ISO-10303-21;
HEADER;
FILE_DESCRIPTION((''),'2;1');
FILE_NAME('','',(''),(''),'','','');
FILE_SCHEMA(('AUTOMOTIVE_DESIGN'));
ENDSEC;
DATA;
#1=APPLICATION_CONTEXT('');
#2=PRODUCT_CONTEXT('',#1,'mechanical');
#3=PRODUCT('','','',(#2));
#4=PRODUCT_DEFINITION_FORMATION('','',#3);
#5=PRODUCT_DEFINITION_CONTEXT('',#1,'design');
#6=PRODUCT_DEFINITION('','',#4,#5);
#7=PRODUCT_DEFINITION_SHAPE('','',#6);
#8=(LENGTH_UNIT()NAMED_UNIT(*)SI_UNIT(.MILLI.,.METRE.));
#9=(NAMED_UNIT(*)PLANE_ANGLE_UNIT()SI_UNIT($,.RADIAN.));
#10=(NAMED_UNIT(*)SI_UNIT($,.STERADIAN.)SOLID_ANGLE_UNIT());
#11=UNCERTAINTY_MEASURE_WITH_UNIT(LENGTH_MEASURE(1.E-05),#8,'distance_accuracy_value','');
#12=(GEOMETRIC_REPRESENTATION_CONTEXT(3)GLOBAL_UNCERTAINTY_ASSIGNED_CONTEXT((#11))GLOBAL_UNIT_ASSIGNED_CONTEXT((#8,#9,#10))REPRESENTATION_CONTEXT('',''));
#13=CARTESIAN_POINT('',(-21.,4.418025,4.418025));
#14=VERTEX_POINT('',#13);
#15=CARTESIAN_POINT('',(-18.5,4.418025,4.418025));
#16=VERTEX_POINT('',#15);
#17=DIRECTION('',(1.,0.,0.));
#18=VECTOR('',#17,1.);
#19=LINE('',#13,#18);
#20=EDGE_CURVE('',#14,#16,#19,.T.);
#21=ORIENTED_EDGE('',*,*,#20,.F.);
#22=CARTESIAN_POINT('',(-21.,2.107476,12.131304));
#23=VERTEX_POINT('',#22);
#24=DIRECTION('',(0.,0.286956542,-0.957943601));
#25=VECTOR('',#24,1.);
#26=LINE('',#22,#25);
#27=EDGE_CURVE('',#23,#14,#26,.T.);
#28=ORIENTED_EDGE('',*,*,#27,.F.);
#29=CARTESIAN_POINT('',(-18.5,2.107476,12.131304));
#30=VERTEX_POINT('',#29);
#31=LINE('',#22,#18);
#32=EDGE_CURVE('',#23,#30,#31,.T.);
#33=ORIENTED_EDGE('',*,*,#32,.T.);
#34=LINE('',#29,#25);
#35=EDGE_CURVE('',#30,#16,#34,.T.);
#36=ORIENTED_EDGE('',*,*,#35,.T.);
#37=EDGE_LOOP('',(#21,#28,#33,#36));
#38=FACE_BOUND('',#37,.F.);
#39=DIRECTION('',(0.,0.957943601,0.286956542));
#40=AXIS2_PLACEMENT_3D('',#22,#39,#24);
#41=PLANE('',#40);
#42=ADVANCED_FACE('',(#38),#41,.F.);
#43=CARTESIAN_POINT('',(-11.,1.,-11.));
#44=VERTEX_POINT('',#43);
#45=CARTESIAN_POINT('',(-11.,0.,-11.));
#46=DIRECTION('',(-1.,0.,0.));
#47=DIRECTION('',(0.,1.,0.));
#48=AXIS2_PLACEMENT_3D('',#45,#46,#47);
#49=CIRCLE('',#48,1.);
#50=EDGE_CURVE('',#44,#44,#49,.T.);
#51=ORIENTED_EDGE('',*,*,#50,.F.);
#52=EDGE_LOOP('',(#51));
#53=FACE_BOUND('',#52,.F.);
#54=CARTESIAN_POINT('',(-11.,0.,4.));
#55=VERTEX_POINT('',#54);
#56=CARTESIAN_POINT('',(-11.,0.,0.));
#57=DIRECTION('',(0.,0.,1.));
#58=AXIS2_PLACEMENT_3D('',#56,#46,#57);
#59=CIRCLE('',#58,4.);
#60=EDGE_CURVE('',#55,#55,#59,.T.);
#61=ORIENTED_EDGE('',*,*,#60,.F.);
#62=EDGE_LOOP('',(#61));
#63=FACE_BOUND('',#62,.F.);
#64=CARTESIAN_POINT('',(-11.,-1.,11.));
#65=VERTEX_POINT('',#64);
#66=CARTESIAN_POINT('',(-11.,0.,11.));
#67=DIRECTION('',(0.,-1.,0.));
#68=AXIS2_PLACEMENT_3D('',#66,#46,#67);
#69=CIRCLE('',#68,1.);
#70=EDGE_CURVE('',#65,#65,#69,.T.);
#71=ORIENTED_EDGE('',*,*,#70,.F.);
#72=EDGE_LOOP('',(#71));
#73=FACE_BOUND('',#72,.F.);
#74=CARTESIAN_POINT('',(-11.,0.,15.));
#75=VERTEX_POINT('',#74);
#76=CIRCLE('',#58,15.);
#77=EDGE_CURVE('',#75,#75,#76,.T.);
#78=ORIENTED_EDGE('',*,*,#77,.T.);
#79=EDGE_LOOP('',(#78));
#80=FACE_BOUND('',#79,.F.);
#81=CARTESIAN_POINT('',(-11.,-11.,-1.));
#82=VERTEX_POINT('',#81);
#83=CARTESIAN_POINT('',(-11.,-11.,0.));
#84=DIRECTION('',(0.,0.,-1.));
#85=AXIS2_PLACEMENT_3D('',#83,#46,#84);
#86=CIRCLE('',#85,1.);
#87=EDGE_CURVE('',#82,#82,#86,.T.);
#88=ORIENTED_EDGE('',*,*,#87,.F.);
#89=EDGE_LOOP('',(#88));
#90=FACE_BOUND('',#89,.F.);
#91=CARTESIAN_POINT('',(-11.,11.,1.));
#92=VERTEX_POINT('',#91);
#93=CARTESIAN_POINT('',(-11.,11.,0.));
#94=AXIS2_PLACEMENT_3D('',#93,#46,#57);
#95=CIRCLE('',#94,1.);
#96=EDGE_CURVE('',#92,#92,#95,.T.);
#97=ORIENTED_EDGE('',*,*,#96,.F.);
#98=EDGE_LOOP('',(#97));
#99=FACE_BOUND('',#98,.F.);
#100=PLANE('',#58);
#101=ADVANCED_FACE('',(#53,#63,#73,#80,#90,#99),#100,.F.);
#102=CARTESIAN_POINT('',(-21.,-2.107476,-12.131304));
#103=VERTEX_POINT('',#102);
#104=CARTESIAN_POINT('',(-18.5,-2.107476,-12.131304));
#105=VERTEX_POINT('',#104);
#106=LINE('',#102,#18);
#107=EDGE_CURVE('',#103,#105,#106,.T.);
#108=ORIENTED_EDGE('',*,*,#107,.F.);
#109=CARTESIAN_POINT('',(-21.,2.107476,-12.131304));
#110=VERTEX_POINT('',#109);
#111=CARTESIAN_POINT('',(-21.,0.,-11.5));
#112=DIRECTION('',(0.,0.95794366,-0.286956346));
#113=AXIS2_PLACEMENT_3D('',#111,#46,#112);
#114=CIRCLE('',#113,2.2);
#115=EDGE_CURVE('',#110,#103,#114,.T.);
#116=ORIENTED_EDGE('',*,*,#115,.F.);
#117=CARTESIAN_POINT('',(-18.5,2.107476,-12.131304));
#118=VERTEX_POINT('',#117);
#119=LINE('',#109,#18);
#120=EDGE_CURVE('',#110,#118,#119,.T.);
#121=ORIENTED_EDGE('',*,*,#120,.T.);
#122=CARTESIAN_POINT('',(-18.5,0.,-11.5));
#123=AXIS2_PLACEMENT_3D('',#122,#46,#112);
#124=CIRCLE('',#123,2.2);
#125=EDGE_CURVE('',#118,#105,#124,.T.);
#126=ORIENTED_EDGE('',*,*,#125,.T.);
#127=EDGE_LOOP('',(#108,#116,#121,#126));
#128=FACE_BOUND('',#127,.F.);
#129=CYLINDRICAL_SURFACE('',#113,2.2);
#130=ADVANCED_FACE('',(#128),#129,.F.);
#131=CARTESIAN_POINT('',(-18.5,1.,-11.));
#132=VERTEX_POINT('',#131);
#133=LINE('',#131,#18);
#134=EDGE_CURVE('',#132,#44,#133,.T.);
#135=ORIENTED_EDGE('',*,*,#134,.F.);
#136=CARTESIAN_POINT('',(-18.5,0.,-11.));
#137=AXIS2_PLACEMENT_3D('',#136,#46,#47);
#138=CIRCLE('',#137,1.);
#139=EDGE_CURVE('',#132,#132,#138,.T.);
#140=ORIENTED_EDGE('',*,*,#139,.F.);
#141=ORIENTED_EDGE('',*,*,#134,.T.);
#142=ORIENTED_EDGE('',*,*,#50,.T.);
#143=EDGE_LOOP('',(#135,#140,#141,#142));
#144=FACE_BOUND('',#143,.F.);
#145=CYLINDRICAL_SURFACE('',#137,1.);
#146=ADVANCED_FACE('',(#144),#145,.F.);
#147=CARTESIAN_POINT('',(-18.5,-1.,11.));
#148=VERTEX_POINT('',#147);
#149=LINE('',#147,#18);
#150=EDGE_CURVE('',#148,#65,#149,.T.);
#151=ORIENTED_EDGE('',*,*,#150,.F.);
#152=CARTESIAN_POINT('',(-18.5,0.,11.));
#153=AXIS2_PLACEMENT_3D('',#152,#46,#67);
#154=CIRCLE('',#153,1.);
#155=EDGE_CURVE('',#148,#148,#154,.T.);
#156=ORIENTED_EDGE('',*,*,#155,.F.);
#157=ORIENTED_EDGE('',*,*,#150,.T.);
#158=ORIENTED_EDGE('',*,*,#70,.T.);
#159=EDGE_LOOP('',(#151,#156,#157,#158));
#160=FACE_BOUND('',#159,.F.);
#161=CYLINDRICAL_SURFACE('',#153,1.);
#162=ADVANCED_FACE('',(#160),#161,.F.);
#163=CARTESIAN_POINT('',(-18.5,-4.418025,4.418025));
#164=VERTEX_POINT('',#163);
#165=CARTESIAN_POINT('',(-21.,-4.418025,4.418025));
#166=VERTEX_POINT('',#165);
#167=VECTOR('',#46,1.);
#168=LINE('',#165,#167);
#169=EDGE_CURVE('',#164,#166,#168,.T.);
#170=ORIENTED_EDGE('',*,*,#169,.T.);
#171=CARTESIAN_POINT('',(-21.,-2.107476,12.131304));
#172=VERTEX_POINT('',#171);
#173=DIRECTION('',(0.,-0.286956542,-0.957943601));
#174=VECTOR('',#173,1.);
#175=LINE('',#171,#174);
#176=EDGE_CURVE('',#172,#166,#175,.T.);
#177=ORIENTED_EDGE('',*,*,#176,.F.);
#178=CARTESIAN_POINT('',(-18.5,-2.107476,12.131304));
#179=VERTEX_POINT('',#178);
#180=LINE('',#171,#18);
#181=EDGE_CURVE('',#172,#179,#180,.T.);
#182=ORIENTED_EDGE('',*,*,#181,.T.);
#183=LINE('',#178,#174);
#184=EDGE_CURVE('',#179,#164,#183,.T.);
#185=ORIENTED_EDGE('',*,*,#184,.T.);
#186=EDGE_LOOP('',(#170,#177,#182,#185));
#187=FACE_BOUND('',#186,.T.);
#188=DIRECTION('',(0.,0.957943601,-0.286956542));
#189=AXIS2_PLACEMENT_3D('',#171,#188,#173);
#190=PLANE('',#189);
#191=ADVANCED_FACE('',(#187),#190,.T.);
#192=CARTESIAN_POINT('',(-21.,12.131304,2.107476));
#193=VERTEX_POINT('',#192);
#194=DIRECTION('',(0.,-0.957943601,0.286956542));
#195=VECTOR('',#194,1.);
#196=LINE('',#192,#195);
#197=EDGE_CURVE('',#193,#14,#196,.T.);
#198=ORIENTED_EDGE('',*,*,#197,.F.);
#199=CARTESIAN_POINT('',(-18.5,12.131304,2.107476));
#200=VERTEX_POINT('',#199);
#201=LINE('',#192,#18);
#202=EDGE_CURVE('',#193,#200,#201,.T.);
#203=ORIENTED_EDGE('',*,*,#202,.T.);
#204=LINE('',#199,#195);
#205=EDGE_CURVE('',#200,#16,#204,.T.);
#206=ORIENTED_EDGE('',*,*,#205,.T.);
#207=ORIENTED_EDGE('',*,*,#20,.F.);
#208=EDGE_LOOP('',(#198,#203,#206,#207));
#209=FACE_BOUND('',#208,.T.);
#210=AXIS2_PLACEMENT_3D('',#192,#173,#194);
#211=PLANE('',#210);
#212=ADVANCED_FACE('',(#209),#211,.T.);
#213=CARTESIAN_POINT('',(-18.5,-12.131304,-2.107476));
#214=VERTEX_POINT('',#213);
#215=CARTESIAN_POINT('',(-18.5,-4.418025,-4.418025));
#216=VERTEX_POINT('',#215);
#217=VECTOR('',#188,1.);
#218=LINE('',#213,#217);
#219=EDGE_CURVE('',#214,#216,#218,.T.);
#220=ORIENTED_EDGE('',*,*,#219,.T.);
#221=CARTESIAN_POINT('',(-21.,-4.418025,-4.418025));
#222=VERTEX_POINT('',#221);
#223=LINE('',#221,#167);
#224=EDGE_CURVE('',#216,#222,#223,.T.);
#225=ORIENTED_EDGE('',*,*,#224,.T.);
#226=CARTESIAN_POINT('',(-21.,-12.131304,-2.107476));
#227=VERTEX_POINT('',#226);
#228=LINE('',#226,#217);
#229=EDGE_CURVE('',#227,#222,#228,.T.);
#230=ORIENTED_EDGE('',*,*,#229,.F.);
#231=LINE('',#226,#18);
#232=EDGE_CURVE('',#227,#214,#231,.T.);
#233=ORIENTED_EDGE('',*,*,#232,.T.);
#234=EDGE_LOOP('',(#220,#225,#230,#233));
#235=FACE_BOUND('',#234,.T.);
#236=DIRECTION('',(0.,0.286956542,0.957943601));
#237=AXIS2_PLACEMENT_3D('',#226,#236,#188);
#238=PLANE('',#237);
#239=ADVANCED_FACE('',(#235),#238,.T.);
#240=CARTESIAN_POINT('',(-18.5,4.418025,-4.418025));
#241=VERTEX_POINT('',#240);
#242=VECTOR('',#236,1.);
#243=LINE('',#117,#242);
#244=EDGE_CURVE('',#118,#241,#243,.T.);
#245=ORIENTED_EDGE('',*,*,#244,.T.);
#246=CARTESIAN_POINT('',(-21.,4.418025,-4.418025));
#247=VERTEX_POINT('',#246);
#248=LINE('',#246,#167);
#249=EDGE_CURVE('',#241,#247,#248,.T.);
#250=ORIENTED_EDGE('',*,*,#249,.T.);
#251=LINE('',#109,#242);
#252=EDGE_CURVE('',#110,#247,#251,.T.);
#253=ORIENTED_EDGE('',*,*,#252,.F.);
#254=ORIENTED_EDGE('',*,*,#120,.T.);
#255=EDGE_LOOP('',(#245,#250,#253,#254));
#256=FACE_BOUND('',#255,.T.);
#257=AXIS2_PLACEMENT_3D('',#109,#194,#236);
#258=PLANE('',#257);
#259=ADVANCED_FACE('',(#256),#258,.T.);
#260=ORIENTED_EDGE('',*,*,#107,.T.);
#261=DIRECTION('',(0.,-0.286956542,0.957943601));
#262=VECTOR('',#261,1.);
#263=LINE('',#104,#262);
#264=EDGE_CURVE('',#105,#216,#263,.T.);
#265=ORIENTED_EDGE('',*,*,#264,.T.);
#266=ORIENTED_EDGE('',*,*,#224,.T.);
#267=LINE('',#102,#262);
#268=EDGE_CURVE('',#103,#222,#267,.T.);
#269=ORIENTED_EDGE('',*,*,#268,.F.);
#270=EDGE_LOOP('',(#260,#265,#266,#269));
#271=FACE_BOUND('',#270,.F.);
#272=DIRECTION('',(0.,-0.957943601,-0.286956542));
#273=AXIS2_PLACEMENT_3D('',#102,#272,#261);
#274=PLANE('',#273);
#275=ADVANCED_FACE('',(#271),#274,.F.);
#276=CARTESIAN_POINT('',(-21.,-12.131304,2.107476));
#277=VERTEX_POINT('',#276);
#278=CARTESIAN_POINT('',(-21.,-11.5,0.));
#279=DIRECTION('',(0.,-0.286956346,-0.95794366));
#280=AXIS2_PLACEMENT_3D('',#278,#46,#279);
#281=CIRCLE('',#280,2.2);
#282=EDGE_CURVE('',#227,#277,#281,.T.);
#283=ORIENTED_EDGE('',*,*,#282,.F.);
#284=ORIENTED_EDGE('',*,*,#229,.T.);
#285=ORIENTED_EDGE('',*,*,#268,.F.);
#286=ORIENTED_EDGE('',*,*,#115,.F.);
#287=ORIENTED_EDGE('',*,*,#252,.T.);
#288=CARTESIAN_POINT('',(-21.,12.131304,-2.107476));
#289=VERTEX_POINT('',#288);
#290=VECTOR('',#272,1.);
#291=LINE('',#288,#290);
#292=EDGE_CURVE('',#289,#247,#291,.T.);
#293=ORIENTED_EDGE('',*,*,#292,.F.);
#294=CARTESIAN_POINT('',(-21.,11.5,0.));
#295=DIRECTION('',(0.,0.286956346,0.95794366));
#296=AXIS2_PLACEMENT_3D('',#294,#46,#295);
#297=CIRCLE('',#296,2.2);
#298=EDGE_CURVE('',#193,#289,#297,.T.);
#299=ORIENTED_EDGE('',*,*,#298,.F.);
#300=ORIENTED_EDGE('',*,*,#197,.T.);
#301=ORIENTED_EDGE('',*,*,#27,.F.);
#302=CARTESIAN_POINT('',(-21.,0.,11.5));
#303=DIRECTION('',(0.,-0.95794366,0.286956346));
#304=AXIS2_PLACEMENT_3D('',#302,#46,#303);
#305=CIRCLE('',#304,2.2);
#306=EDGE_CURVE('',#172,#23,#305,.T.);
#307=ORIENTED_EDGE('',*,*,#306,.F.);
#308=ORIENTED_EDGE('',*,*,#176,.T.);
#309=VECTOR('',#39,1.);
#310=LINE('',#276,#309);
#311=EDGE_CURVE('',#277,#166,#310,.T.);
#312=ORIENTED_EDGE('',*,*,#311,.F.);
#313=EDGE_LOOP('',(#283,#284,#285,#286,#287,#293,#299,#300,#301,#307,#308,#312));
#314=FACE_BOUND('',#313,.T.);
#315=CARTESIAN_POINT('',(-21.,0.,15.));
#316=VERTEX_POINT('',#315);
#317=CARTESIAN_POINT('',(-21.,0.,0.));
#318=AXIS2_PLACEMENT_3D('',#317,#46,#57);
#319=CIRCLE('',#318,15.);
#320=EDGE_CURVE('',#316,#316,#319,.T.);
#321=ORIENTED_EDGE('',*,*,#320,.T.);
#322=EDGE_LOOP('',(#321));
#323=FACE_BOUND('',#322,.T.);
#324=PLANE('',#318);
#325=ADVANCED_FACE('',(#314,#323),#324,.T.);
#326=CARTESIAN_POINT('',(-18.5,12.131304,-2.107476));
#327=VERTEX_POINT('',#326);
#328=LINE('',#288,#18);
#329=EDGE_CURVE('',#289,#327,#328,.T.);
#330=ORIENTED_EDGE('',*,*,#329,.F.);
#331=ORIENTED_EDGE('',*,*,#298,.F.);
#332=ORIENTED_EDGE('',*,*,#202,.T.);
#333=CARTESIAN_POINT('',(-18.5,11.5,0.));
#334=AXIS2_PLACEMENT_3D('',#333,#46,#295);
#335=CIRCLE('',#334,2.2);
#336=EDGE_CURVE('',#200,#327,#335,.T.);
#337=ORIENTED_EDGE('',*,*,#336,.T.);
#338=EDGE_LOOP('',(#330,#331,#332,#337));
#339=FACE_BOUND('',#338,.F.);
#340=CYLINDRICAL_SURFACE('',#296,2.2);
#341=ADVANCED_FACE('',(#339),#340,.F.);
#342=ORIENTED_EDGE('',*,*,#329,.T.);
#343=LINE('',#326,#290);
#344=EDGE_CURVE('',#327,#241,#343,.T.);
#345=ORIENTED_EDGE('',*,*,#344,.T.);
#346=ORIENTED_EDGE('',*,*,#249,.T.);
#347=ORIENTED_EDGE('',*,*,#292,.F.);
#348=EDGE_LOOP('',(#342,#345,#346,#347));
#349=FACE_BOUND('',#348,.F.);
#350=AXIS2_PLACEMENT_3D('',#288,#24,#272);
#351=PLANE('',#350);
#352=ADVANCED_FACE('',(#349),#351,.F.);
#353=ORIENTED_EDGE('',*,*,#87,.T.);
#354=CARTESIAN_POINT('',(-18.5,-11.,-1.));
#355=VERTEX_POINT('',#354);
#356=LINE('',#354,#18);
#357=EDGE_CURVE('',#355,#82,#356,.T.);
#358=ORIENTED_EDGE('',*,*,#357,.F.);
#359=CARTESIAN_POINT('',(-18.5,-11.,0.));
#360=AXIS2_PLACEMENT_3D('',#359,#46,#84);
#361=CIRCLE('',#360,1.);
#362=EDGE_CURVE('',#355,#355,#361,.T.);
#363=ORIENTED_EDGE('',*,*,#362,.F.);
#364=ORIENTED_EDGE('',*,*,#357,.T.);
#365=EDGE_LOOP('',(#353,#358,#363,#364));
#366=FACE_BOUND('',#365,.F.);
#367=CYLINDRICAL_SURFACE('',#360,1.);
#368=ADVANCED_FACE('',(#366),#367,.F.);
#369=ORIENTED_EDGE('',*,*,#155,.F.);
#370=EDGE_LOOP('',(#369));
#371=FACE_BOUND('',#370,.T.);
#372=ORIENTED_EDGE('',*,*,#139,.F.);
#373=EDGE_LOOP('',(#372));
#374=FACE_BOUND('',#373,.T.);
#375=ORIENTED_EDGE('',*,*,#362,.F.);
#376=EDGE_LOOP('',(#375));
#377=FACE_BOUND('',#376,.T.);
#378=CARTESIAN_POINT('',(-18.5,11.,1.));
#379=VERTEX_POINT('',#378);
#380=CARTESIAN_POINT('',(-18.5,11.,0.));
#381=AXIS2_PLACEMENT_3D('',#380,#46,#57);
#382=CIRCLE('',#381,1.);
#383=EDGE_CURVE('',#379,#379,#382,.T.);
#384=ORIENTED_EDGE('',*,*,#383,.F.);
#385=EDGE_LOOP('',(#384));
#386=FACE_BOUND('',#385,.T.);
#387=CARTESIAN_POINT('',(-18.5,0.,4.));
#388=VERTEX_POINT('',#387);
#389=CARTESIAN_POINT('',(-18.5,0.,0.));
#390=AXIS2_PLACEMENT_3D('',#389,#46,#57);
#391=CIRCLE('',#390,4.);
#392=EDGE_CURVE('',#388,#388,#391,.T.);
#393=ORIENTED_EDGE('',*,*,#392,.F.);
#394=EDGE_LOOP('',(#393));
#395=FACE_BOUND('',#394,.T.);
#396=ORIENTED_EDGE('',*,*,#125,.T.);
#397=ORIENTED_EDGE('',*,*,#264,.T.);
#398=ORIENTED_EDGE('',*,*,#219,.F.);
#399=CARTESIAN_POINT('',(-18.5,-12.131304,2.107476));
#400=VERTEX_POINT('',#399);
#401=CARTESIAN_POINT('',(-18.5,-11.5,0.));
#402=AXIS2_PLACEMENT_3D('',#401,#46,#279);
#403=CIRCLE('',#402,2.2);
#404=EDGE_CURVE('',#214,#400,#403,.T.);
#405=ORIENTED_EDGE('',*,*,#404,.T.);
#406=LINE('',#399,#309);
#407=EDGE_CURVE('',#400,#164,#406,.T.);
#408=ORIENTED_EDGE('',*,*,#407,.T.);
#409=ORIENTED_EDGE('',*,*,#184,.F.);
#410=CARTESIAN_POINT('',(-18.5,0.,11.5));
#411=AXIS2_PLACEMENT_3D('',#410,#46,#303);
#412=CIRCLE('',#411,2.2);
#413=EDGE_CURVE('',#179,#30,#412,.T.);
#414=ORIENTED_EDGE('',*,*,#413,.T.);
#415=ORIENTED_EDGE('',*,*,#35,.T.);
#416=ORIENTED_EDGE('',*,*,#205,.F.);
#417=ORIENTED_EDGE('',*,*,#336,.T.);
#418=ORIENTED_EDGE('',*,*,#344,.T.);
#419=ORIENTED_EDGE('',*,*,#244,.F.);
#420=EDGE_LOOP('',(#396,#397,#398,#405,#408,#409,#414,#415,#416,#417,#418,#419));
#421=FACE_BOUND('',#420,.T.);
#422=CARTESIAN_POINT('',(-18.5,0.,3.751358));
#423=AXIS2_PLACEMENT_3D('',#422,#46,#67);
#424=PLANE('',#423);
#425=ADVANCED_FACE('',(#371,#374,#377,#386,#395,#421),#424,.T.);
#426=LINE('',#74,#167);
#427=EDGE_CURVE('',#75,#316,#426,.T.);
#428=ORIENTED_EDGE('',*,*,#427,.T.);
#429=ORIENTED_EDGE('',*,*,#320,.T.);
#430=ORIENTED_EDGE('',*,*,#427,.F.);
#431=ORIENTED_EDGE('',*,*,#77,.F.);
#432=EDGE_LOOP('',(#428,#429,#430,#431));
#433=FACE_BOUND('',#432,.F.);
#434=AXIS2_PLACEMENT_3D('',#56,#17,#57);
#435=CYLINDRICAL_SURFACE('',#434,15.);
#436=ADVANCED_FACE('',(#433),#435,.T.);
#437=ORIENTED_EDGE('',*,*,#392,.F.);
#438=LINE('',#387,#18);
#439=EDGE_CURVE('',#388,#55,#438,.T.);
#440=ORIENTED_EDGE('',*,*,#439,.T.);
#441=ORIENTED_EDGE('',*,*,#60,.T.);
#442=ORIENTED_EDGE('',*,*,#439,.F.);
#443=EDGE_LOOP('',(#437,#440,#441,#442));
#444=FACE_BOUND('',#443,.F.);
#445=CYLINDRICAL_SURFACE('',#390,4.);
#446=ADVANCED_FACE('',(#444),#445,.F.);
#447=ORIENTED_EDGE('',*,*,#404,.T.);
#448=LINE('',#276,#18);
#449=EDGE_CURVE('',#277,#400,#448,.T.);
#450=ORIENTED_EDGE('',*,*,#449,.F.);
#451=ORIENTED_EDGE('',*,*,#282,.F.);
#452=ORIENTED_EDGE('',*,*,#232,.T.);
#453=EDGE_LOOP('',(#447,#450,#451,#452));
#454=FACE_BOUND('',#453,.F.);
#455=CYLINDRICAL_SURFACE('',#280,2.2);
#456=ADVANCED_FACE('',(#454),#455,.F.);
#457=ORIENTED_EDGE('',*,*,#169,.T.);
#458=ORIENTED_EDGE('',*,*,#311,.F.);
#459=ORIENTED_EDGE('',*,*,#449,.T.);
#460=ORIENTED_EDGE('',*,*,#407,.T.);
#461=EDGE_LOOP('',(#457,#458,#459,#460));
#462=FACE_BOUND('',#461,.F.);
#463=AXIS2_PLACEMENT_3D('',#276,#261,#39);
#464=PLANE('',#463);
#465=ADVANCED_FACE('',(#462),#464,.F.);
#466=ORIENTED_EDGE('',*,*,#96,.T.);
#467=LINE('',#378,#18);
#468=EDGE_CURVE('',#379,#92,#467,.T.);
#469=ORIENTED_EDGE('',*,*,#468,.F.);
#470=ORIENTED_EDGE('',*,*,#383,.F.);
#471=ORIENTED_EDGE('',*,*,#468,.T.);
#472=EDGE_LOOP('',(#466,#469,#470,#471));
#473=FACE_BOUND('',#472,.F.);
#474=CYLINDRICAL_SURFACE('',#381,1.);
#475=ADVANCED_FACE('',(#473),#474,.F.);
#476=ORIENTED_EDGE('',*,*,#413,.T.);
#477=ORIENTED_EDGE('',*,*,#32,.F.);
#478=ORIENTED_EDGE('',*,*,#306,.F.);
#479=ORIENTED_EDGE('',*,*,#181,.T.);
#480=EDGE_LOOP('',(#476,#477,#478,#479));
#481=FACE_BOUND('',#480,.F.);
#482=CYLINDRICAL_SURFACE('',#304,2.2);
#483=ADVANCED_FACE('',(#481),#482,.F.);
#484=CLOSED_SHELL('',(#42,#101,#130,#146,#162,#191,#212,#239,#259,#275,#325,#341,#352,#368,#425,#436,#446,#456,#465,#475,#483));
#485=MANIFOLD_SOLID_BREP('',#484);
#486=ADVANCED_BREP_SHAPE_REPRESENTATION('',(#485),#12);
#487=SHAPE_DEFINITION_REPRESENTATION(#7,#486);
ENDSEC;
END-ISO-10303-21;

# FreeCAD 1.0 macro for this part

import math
import FreeCAD as App
import Part
import Sketcher

V = App.Vector
Q = App.Units.Quantity

doc = App.newDocument("Part")
body = doc.addObject("PartDesign::Body", "Body")

# Sketch on XY plane
sketch1 = body.newObject("Sketcher::SketchObject", "Sketch")
sketch1.AttachmentSupport = (doc.getObject("XY_Plane"), [""])
sketch1.MapMode = "FlatFace"
sketch1.addGeometry(Part.Circle(V(0, 0, 0), V(0, 0, 1), 15), False)
sketch1.addConstraint([
    Sketcher.Constraint("Coincident", 0, 3, -1, 1),
    Sketcher.Constraint("Diameter", 0, Q("30 mm")),
])
pad1 = body.newObject("PartDesign::Pad", "Pad")
pad1.Profile = sketch1
pad1.Length = 10

# Sketch on XY plane
sketch2 = body.newObject("Sketcher::SketchObject", "Sketch001")
sketch2.AttachmentSupport = (doc.getObject("XY_Plane"), [""])
sketch2.MapMode = "FlatFace"
sketch2.AttachmentOffset = App.Placement(V(0, 0, 10), App.Rotation())
sketch2.addGeometry([
    Part.ArcOfCircle(Part.Circle(V(0, 0, 0), V(0, 0, 1), 5.5), math.radians(163), math.radians(377)),
    Part.LineSegment(V(5.3, 1.6, 0), V(2.1, 12.1, 0)),
    Part.ArcOfCircle(Part.Circle(V(0, 11.5, 0), V(0, 0, 1), 2.2), math.radians(17), math.radians(163)),
    Part.LineSegment(V(-2.1, 12.1, 0), V(-5.3, 1.6, 0)),
], False)
sketch2.addConstraint([
    Sketcher.Constraint("Tangent", 0, 2, 1, 1),
    Sketcher.Constraint("Tangent", 1, 2, 2, 1),
    Sketcher.Constraint("Tangent", 2, 2, 3, 1),
    Sketcher.Constraint("Tangent", 3, 2, 0, 1),
    Sketcher.Constraint("Coincident", 0, 3, -1, 1),
    Sketcher.Constraint("PointOnObject", 2, 3, -2),
    Sketcher.Constraint("Radius", 0, Q("5.5 mm")),
    Sketcher.Constraint("Radius", 2, Q("2.2 mm")),
    Sketcher.Constraint("DistanceY", -1, 1, 2, 3, Q("11.5 mm")),
])
pocket1 = body.newObject("PartDesign::Pocket", "Pocket")
pocket1.Profile = sketch2
pocket1.Length = 2.5
doc.recompute()

polarpattern = body.newObject("PartDesign::PolarPattern", "PolarPattern")
polarpattern.Originals = [pocket1]
polarpattern.Axis = (doc.getObject("Z_Axis"), [""])
polarpattern.Angle = 360
polarpattern.Occurrences = 4
body.Tip = polarpattern

# Sketch on XY plane
sketch3 = body.newObject("Sketcher::SketchObject", "Sketch002")
sketch3.AttachmentSupport = (doc.getObject("XY_Plane"), [""])
sketch3.MapMode = "FlatFace"
sketch3.AttachmentOffset = App.Placement(V(0, 0, 7.5), App.Rotation())
sketch3.addGeometry(Part.Circle(V(0, 11, 0), V(0, 0, 1), 1), False)
sketch3.addConstraint([
    Sketcher.Constraint("PointOnObject", 0, 3, -2),
    Sketcher.Constraint("Diameter", 0, Q("2 mm")),
    Sketcher.Constraint("DistanceY", -1, 1, 0, 3, Q("11 mm")),
])
pocket2 = body.newObject("PartDesign::Pocket", "Pocket001")
pocket2.Profile = sketch3
pocket2.Length = 25
doc.recompute()

polarpattern2 = body.newObject("PartDesign::PolarPattern", "PolarPattern001")
polarpattern2.Originals = [pocket2]
polarpattern2.Axis = (doc.getObject("Z_Axis"), [""])
polarpattern2.Angle = 360
polarpattern2.Occurrences = 4
body.Tip = polarpattern2

# Sketch on XY plane
sketch4 = body.newObject("Sketcher::SketchObject", "Sketch003")
sketch4.AttachmentSupport = (doc.getObject("XY_Plane"), [""])
sketch4.MapMode = "FlatFace"
sketch4.AttachmentOffset = App.Placement(V(0, 0, 7.5), App.Rotation())
sketch4.addGeometry(Part.Circle(V(0, 0, 0), V(0, 0, 1), 4), False)
sketch4.addConstraint([
    Sketcher.Constraint("Coincident", 0, 3, -1, 1),
    Sketcher.Constraint("Diameter", 0, Q("8 mm")),
])
pocket3 = body.newObject("PartDesign::Pocket", "Pocket002")
pocket3.Profile = sketch4
pocket3.Type = "ThroughAll"
body2 = doc.addObject("PartDesign::Body", "Body001")
doc.recompute()

body.Placement = App.Placement(V(-11, 0, 0), App.Rotation(V(0, -1, 0), 90))
boolean = body2.newObject("PartDesign::Boolean", "Boolean")
boolean.Type = "Fuse"
boolean.addObjects([body])

doc.recompute()
